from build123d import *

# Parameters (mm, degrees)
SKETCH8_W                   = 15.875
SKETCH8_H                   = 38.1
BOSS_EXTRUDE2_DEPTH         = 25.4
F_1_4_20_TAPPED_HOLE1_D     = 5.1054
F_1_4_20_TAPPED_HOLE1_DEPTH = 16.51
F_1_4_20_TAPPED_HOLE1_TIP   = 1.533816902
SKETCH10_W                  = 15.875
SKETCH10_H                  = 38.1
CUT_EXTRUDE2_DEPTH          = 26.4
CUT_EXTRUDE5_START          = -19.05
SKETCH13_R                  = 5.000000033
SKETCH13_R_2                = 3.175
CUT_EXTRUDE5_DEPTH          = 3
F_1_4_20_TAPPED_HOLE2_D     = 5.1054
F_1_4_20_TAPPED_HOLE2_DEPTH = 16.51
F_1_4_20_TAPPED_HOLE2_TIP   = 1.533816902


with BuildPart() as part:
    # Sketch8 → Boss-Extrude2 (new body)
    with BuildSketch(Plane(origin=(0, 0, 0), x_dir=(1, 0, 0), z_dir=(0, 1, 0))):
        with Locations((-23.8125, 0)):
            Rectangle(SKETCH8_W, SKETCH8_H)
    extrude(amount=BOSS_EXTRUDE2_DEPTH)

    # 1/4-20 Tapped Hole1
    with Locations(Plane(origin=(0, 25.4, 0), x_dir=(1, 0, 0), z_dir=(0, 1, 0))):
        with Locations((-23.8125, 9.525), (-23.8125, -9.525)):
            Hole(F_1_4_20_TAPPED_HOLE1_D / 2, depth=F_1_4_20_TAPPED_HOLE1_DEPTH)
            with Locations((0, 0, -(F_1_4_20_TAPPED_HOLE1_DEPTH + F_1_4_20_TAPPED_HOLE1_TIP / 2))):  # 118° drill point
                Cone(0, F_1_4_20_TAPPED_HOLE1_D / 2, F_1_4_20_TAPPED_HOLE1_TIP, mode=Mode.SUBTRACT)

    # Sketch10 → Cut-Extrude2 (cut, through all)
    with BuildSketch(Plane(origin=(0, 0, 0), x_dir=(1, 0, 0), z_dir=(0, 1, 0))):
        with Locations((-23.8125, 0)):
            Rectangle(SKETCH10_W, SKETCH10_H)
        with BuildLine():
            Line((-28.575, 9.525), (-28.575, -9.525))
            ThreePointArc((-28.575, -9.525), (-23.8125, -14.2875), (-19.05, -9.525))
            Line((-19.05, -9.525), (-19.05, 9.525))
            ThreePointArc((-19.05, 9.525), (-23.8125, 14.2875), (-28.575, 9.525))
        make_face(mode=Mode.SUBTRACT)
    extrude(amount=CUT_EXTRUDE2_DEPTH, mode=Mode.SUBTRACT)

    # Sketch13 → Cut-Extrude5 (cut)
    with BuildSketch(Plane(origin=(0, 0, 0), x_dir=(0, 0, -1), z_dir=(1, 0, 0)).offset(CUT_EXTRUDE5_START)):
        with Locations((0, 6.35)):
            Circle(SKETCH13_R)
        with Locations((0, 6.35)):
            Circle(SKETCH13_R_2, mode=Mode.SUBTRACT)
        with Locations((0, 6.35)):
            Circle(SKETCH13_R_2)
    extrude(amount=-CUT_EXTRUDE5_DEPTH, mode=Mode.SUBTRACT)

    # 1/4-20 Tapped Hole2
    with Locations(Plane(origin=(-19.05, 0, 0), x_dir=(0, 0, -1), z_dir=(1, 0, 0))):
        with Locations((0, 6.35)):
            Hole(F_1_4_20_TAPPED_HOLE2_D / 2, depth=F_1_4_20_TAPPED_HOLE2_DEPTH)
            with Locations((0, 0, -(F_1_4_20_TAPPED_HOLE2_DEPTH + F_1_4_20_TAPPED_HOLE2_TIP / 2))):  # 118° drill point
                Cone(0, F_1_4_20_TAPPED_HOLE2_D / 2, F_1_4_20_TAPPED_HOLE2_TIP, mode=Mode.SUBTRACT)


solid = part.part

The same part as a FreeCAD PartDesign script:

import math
import FreeCAD as App
import Part
import Sketcher
from FreeCAD import Vector
Q = App.Units.Quantity

doc = App.newDocument("Part")
params = doc.addObject("Spreadsheet::Sheet", "Params")
for row, (alias, value) in enumerate([
    ("sketch1_height", "1.5 in"),
    ("sketch1_width", "0.625 in"),
    ("pad1_length", "1 in"),
    ("sketch2_diameter", "0.201 in"),
    ("hole_diameter", "0.201 in"),
    ("hole_depth", "0.65 in"),
    ("sketch3_height", "1.5 in"),
    ("sketch3_radius", "0.1875 in"),
    ("sketch3_height2", "0.75 in"),
    ("pocket2_length", "3 mm"),
    ("sketch5_diameter", "0.201 in"),
    ("hole2_diameter", "0.201 in"),
    ("hole2_depth", "0.65 in"),
], start=1):
    params.set(f"A{row}", alias)
    params.set(f"B{row}", "=" + value)
    params.setAlias(f"B{row}", alias)

body = doc.addObject("PartDesign::Body", "Body")

# Sketch on XZ plane
sketch1 = body.newObject("Sketcher::SketchObject", "Sketch")
sketch1.AttachmentSupport = (doc.getObject("XZ_Plane"), [""])
sketch1.MapMode = "FlatFace"
sketch1.addGeometry([
    Part.LineSegment(Vector(-31.75, -19.05, 0), Vector(-31.75, 19.05, 0)),
    Part.LineSegment(Vector(-31.75, 19.05, 0), Vector(-15.875, 19.05, 0)),
    Part.LineSegment(Vector(-15.875, 19.05, 0), Vector(-15.875, -19.05, 0)),
    Part.LineSegment(Vector(-15.875, -19.05, 0), Vector(-31.75, -19.05, 0)),
], False)
sketch1.addConstraint([
    Sketcher.Constraint("Coincident", 0, 2, 1, 1),
    Sketcher.Constraint("Coincident", 1, 2, 2, 1),
    Sketcher.Constraint("Coincident", 2, 2, 3, 1),
    Sketcher.Constraint("Coincident", 3, 2, 0, 1),
    Sketcher.Constraint("Vertical", 0),
    Sketcher.Constraint("Horizontal", 1),
    Sketcher.Constraint("Vertical", 2),
    Sketcher.Constraint("Horizontal", 3),
    Sketcher.Constraint("DistanceY", 0, 1, 0, 2, Q("1.5 in")),
    Sketcher.Constraint("DistanceX", 1, 1, 1, 2, Q("0.625 in")),
    Sketcher.Constraint("DistanceX", 0, 2, -1, 1, Q("1.25 in")),
    Sketcher.Constraint("DistanceY", -1, 1, 0, 2, Q("0.75 in")),
])
sketch1.setExpression("Constraints[8]", "Params.sketch1_height")
sketch1.setExpression("Constraints[9]", "Params.sketch1_width")
pad1 = body.newObject("PartDesign::Pad", "Pad")
pad1.Profile = sketch1
pad1.setExpression("Length", "Params.pad1_length")
pad1.Reversed = True

# Sketch on XZ plane
sketch2 = body.newObject("Sketcher::SketchObject", "Sketch001")
sketch2.AttachmentSupport = (doc.getObject("XZ_Plane"), [""])
sketch2.MapMode = "FlatFace"
sketch2.AttachmentOffset = App.Placement(Vector(0, 0, -1 * 25.4), App.Rotation())
sketch2.addGeometry([
    Part.Circle(Vector(-23.8125, -9.525, 0), Vector(0, 0, 1), 2.5527),
    Part.Circle(Vector(-23.8125, 9.525, 0), Vector(0, 0, 1), 2.5527),
], False)
sketch2.addConstraint([
    Sketcher.Constraint("Equal", 0, 1),
    Sketcher.Constraint("Symmetric", 0, 3, 1, 3, -1),
    Sketcher.Constraint("Diameter", 0, Q("0.201 in")),
    Sketcher.Constraint("DistanceY", 0, 3, 1, 3, Q("0.75 in")),
    Sketcher.Constraint("DistanceX", 0, 3, -1, 1, Q("0.9375 in")),
])
sketch2.setExpression("Constraints[2]", "Params.sketch2_diameter")
doc.recompute()
hole = body.newObject("PartDesign::Hole", "Hole")
hole.Profile = sketch2
hole.ThreadType = "None"
hole.setExpression("Diameter", "Params.hole_diameter")
hole.DepthType = "Dimension"
hole.setExpression("Depth", "Params.hole_depth")
hole.DrillPoint = "Angled"
hole.DrillPointAngle = 118
hole.Reversed = True

# Sketch on XZ plane
sketch3 = body.newObject("Sketcher::SketchObject", "Sketch002")
sketch3.AttachmentSupport = (doc.getObject("XZ_Plane"), [""])
sketch3.MapMode = "FlatFace"
sketch3.addGeometry([
    Part.LineSegment(Vector(-31.75, -19.05, 0), Vector(-31.75, 19.05, 0)),  # 0
    Part.LineSegment(Vector(-31.75, 19.05, 0), Vector(-15.875, 19.05, 0)),  # 1
    Part.LineSegment(Vector(-15.875, 19.05, 0), Vector(-15.875, -19.05, 0)),  # 2
    Part.LineSegment(Vector(-15.875, -19.05, 0), Vector(-31.75, -19.05, 0)),  # 3
    Part.LineSegment(Vector(-28.575, 9.525, 0), Vector(-28.575, -9.525, 0)),  # 4
    Part.ArcOfCircle(Part.Circle(Vector(-23.8125, -9.525, 0), Vector(0, 0, 1), 4.7625), math.radians(180), math.radians(360)),  # 5
    Part.LineSegment(Vector(-19.05, -9.525, 0), Vector(-19.05, 9.525, 0)),  # 6
    Part.ArcOfCircle(Part.Circle(Vector(-23.8125, 9.525, 0), Vector(0, 0, 1), 4.7625), math.radians(0), math.radians(180)),  # 7
], False)
sketch3.addConstraint([
    Sketcher.Constraint("Coincident", 0, 2, 1, 1),
    Sketcher.Constraint("Coincident", 1, 2, 2, 1),
    Sketcher.Constraint("Coincident", 2, 2, 3, 1),
    Sketcher.Constraint("Coincident", 3, 2, 0, 1),
    Sketcher.Constraint("Tangent", 4, 2, 5, 1),
    Sketcher.Constraint("Tangent", 5, 2, 6, 1),
    Sketcher.Constraint("Tangent", 6, 2, 7, 1),
    Sketcher.Constraint("Tangent", 7, 2, 4, 1),
    Sketcher.Constraint("Vertical", 0),
    Sketcher.Constraint("Horizontal", 1),
    Sketcher.Constraint("Vertical", 2),
    Sketcher.Constraint("Horizontal", 3),
    Sketcher.Constraint("Vertical", 4),
    Sketcher.Constraint("Vertical", 6),
    Sketcher.Constraint("DistanceY", 0, 1, 0, 2, Q("1.5 in")),
    Sketcher.Constraint("Radius", 5, Q("0.1875 in")),
    Sketcher.Constraint("DistanceY", 4, 2, 4, 1, Q("0.75 in")),
    Sketcher.Constraint("DistanceX", 4, 2, 2, 2, Q("0.5 in")),
    Sketcher.Constraint("DistanceX", 3, 2, 5, 2, Q("0.5 in")),
    Sketcher.Constraint("DistanceX", 0, 2, -1, 1, Q("1.25 in")),
    Sketcher.Constraint("DistanceY", -1, 1, 0, 2, Q("0.75 in")),
    Sketcher.Constraint("DistanceY", 5, 3, -1, 1, Q("0.375 in")),
])
sketch3.setExpression("Constraints[14]", "Params.sketch3_height")
sketch3.setExpression("Constraints[15]", "Params.sketch3_radius")
sketch3.setExpression("Constraints[16]", "Params.sketch3_height2")
pocket1 = body.newObject("PartDesign::Pocket", "Pocket")
pocket1.Profile = sketch3
pocket1.Type = "ThroughAll"

# Sketch on YZ plane
sketch4 = body.newObject("Sketcher::SketchObject", "Sketch003")
sketch4.AttachmentSupport = (doc.getObject("YZ_Plane"), [""])
sketch4.MapMode = "FlatFace"
sketch4.AttachmentOffset = App.Placement(Vector(0, 0, -0.75 * 25.4), App.Rotation())
sketch4.addGeometry(Part.Circle(Vector(6.35, 0, 0), Vector(0, 0, 1), 5), False)
sketch4.addConstraint([
    Sketcher.Constraint("PointOnObject", 0, 3, -1),
    Sketcher.Constraint("Diameter", 0, 10.0),
    Sketcher.Constraint("DistanceX", -1, 1, 0, 3, Q("0.25 in")),
])
pocket2 = body.newObject("PartDesign::Pocket", "Pocket001")
pocket2.Profile = sketch4
pocket2.setExpression("Length", "Params.pocket2_length")

# Sketch on YZ plane
sketch5 = body.newObject("Sketcher::SketchObject", "Sketch004")
sketch5.AttachmentSupport = (doc.getObject("YZ_Plane"), [""])
sketch5.MapMode = "FlatFace"
sketch5.AttachmentOffset = App.Placement(Vector(0, 0, -0.75 * 25.4), App.Rotation())
sketch5.addGeometry(Part.Circle(Vector(6.35, 0, 0), Vector(0, 0, 1), 2.5527), False)
sketch5.addConstraint([
    Sketcher.Constraint("PointOnObject", 0, 3, -1),
    Sketcher.Constraint("Diameter", 0, Q("0.201 in")),
    Sketcher.Constraint("DistanceX", -1, 1, 0, 3, Q("0.25 in")),
])
sketch5.setExpression("Constraints[1]", "Params.sketch5_diameter")
doc.recompute()
hole2 = body.newObject("PartDesign::Hole", "Hole001")
hole2.Profile = sketch5
hole2.ThreadType = "None"
hole2.setExpression("Diameter", "Params.hole2_diameter")
hole2.DepthType = "Dimension"
hole2.setExpression("Depth", "Params.hole2_depth")
hole2.DrillPoint = "Angled"
hole2.DrillPointAngle = 118

doc.recompute()
